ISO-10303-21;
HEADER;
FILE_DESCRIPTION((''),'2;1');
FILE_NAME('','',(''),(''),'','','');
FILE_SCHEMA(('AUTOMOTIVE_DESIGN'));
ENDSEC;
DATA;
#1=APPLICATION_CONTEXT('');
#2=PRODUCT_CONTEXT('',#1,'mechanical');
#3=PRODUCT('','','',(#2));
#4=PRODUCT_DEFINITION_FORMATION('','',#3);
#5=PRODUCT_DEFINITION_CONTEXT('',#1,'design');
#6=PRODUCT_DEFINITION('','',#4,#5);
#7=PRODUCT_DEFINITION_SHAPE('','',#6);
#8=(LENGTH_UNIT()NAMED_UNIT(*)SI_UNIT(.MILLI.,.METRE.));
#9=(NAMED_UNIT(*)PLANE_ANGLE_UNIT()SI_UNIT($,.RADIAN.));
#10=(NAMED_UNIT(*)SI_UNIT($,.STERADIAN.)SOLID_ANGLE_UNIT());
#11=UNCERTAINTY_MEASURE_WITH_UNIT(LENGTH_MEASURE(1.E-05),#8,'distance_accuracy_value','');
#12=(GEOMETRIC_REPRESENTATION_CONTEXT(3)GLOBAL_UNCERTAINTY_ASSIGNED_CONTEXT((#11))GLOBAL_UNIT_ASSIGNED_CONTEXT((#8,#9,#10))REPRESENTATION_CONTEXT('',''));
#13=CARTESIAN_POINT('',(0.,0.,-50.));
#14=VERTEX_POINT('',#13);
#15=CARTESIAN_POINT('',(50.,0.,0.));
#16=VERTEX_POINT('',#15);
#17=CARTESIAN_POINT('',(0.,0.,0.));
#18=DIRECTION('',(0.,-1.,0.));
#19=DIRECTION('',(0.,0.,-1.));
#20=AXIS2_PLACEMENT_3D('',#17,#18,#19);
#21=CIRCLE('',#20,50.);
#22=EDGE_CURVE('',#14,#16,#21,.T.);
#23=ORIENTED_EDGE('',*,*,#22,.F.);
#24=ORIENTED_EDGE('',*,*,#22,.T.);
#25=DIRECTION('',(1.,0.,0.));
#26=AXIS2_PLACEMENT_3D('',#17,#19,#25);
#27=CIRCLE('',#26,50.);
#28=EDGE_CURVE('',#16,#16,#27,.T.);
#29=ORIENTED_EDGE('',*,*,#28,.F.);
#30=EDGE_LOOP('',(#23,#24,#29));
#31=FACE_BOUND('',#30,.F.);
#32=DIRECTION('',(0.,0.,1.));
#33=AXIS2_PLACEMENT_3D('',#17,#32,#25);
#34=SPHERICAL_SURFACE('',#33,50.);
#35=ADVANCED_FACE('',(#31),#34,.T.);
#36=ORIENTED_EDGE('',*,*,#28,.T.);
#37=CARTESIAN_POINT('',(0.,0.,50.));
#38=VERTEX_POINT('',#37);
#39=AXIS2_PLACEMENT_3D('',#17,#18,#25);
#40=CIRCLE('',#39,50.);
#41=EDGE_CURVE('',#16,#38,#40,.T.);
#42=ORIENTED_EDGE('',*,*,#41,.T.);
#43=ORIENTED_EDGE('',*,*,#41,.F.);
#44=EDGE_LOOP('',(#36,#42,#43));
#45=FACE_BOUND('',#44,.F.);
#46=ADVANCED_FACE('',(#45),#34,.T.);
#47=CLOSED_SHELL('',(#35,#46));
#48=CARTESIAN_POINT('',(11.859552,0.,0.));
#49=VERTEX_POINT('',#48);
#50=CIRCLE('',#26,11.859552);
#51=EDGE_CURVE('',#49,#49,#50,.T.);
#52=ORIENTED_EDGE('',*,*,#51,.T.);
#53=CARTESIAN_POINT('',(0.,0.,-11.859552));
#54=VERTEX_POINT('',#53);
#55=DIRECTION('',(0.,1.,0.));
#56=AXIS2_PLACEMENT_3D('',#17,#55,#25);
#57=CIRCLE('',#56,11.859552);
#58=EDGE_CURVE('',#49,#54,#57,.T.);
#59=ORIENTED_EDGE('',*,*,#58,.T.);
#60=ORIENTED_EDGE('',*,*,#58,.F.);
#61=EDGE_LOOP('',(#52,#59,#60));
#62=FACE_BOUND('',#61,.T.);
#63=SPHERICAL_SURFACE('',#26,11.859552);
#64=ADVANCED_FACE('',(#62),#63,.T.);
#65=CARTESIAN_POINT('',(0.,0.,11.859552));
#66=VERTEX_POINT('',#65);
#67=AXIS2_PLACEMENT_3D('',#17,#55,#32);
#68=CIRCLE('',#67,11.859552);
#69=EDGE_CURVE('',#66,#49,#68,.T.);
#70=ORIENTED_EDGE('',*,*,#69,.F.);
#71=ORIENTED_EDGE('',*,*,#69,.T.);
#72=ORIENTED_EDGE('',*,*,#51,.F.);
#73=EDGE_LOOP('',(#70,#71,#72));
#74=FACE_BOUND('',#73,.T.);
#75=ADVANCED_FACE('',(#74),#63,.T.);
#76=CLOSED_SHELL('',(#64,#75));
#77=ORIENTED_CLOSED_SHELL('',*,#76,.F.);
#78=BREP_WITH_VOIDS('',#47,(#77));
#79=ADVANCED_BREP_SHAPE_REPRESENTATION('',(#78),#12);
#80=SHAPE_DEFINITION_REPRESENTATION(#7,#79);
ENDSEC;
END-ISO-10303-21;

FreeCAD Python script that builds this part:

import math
import FreeCAD as App
import Part
import Sketcher

doc = App.newDocument("Part")
body = doc.addObject("PartDesign::Body", "Body")

sketch1 = doc.addObject("Sketcher::SketchObject", "Sketch")
body.addObject(sketch1)
sketch1.AttachmentSupport = (doc.XZ_Plane, [""])
sketch1.MapMode = "FlatFace"
sketch1.addGeometry([
    Part.ArcOfCircle(Part.Circle(App.Vector(0, 0, 0), App.Vector(0, 0, 1), 50), math.radians(-90), math.radians(0)),
    Part.ArcOfCircle(Part.Circle(App.Vector(0, 0, 0), App.Vector(0, 0, 1), 50), math.radians(0), math.radians(90)),
    Part.LineSegment(App.Vector(0, 50, 0), App.Vector(0, 12, 0)),
    Part.ArcOfCircle(Part.Circle(App.Vector(0, 0, 0), App.Vector(0, 0, 1), 12), math.radians(0), math.radians(90)),
    Part.ArcOfCircle(Part.Circle(App.Vector(0, 0, 0), App.Vector(0, 0, 1), 12), math.radians(-90), math.radians(0)),
    Part.LineSegment(App.Vector(0, -12, 0), App.Vector(0, -50, 0)),
], False)
sketch1.addConstraint([
    Sketcher.Constraint("Tangent", 0, 2, 1, 1),
    Sketcher.Constraint("Coincident", 1, 2, 2, 1),
    Sketcher.Constraint("Coincident", 2, 2, 3, 2),
    Sketcher.Constraint("Tangent", 3, 1, 4, 2),
    Sketcher.Constraint("Coincident", 4, 1, 5, 1),
    Sketcher.Constraint("Coincident", 5, 2, 0, 1),
    Sketcher.Constraint("Vertical", 2),
    Sketcher.Constraint("Vertical", 5),
    Sketcher.Constraint("Coincident", 0, 3, -1, 1),
    Sketcher.Constraint("Coincident", 3, 3, -1, 1),
    Sketcher.Constraint("Equal", 0, 1),
    Sketcher.Constraint("Equal", 3, 4),
    Sketcher.Constraint("PointOnObject", 0, 2, -1),
    Sketcher.Constraint("PointOnObject", 1, 2, -2),
    Sketcher.Constraint("PointOnObject", 3, 1, -1),
    Sketcher.Constraint("PointOnObject", 4, 1, -2),
    Sketcher.Constraint("Radius", 0, 50.0),
    Sketcher.Constraint("Radius", 3, 11.859552),
])
revolution = doc.addObject("PartDesign::Revolution", "Revolution")
body.addObject(revolution)
revolution.Profile = sketch1
revolution.ReferenceAxis = (sketch1, ["V_Axis"])
revolution.Angle = 360

doc.recompute()
